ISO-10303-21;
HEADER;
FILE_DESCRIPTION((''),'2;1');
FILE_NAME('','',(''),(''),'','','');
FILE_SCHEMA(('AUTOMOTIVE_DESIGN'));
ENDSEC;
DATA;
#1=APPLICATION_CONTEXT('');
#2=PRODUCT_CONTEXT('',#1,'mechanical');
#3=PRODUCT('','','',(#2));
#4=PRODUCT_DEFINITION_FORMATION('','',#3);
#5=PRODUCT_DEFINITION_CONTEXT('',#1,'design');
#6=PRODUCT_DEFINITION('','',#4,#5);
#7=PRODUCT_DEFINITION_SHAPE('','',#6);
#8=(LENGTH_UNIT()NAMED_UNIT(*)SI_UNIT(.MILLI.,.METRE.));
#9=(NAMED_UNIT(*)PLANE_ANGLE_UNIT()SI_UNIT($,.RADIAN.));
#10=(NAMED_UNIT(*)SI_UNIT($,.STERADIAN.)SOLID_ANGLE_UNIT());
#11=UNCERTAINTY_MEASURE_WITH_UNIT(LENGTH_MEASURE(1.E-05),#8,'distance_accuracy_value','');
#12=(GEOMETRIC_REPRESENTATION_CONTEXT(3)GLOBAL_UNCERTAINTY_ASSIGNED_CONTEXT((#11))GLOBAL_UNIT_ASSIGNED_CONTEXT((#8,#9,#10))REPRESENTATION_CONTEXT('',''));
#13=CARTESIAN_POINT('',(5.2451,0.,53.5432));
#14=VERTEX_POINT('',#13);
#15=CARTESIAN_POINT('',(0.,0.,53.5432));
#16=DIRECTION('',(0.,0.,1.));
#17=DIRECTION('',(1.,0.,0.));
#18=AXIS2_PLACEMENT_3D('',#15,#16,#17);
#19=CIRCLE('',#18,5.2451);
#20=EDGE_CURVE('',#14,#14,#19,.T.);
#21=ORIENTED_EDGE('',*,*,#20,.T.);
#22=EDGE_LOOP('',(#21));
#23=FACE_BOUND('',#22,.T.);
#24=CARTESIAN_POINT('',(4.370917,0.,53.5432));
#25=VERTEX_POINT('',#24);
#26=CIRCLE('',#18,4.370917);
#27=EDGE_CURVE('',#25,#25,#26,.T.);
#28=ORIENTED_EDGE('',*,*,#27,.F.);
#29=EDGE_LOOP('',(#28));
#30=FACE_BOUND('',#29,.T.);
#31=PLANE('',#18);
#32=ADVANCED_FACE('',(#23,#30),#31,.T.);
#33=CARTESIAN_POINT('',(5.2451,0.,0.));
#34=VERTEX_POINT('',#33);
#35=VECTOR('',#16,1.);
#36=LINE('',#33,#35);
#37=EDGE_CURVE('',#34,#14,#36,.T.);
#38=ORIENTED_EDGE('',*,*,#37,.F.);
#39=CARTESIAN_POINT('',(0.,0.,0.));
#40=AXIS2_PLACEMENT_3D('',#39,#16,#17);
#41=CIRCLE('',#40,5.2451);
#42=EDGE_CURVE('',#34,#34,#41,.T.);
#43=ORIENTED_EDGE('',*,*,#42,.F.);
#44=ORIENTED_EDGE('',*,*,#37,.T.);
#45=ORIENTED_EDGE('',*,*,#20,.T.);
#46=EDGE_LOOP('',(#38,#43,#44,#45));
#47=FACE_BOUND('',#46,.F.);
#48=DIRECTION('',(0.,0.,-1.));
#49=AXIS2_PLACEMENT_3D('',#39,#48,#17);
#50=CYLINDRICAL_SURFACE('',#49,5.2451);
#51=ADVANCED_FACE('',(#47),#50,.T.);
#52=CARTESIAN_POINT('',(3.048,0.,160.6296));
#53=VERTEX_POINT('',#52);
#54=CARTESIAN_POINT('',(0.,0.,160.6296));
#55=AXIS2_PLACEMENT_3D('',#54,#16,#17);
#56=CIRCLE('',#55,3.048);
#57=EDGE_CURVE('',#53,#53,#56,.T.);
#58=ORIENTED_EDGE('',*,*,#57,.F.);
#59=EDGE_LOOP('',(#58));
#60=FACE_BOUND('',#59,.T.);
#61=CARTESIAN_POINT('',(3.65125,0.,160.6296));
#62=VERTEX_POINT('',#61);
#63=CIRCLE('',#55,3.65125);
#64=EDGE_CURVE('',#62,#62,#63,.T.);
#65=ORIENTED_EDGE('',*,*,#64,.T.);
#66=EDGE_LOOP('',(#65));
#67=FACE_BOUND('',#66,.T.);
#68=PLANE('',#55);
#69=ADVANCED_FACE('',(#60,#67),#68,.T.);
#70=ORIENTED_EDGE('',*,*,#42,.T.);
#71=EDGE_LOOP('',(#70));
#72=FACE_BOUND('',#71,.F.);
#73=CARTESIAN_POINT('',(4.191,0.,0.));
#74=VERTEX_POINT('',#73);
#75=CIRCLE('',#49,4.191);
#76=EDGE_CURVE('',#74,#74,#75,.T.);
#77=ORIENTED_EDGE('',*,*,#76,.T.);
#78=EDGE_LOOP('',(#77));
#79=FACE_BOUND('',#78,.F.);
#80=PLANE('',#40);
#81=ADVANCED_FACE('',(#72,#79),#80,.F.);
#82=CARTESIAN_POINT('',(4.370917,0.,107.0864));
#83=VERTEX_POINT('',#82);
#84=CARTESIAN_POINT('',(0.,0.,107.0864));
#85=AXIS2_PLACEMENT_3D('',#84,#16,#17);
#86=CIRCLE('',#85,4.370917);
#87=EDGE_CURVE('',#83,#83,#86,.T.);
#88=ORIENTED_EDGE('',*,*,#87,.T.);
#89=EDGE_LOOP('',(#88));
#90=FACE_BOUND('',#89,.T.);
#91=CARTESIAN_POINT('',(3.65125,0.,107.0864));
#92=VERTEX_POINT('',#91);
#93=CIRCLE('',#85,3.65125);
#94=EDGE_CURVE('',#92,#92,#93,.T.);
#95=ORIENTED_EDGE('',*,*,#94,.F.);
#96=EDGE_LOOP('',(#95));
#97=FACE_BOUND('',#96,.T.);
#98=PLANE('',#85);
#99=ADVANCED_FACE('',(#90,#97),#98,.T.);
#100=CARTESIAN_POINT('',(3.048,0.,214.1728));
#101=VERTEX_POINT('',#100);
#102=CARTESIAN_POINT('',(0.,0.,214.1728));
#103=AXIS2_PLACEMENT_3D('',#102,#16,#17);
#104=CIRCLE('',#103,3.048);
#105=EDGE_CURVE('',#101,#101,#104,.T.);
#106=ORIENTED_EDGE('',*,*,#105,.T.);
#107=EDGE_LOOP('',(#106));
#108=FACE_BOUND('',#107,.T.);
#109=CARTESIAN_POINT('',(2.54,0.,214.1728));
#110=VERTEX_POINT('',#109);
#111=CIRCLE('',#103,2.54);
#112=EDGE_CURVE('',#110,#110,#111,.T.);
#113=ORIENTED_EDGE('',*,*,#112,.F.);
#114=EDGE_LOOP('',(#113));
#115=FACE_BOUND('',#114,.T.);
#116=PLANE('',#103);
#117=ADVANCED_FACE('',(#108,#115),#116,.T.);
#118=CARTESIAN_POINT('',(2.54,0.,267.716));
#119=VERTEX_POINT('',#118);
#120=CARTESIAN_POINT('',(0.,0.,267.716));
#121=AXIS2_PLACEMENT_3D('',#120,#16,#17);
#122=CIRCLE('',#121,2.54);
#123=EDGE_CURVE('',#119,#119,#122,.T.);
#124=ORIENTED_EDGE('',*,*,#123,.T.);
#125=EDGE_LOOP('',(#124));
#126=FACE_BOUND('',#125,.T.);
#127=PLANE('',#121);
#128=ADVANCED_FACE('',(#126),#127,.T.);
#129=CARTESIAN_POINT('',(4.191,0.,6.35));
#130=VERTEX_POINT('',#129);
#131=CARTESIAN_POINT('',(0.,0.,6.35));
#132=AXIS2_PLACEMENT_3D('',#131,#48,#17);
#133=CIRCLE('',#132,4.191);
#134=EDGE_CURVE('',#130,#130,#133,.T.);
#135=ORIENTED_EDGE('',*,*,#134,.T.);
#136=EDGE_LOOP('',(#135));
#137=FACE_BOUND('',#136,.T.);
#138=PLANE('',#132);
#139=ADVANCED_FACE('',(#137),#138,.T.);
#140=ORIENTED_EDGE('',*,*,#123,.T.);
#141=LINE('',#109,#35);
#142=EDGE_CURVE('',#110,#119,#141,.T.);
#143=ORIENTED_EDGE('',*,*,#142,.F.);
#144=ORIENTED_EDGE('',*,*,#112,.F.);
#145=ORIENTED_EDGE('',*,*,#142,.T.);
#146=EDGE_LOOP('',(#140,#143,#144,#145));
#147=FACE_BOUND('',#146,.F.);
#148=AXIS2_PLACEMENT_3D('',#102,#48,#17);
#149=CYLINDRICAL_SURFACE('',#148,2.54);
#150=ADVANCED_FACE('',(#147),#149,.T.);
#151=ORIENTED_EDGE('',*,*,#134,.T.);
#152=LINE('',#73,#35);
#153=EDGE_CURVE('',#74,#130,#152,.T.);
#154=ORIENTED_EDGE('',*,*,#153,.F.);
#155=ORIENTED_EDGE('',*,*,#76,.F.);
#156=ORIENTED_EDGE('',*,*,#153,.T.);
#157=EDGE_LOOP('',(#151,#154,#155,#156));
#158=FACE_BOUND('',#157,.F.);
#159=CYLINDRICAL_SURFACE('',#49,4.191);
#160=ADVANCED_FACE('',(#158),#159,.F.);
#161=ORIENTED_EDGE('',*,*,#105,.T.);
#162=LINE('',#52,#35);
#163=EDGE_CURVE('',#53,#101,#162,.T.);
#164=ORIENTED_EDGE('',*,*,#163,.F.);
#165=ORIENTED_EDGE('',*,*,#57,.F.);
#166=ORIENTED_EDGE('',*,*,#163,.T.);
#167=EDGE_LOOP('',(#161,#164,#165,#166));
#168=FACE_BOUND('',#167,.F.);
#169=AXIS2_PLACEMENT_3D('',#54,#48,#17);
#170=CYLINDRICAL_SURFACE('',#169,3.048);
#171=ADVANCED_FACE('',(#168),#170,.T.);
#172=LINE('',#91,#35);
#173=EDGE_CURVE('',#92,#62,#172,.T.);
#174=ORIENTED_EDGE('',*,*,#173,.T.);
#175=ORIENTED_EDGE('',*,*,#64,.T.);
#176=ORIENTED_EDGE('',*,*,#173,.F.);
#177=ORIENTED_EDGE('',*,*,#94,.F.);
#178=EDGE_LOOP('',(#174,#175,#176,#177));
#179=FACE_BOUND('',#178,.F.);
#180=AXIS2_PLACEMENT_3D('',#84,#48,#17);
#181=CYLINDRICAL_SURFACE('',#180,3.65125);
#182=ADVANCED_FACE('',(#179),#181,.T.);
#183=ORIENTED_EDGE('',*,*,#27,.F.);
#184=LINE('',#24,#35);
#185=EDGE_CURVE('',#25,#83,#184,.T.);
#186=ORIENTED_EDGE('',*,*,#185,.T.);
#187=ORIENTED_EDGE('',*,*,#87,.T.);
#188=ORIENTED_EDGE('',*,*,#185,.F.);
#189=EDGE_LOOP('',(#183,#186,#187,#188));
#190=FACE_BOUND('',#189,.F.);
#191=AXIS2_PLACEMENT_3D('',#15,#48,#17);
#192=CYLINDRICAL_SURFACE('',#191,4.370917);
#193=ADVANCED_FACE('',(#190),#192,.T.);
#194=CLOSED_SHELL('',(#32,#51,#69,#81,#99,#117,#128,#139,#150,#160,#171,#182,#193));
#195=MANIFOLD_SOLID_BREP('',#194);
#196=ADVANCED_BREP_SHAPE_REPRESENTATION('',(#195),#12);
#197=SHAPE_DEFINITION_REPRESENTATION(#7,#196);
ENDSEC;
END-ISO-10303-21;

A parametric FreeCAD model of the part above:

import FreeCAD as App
import Part
import Sketcher
from FreeCAD import Vector
Q = App.Units.Quantity

doc = App.newDocument("Part")
body = doc.addObject("PartDesign::Body", "Body")

# Sketch on XY plane
sketch1 = body.newObject("Sketcher::SketchObject", "Sketch")
sketch1.AttachmentSupport = (doc.getObject("XY_Plane"), [""])
sketch1.MapMode = "FlatFace"
sketch1.addGeometry(Part.Circle(Vector(0, 0, 0), Vector(0, 0, 1), 5.2451), False)
sketch1.addConstraint(Sketcher.Constraint("Coincident", 0, 3, -1, 1))
sketch1.addConstraint(Sketcher.Constraint("Diameter", 0, Q("0.413 in")))
pad1 = body.newObject("PartDesign::Pad", "Pad")
pad1.Profile = sketch1
pad1.Length = Q("2.108 in")

# Sketch on XY plane
sketch2 = body.newObject("Sketcher::SketchObject", "Sketch001")
sketch2.AttachmentSupport = (doc.getObject("XY_Plane"), [""])
sketch2.MapMode = "FlatFace"
sketch2.addGeometry(Part.Circle(Vector(0, 0, 0), Vector(0, 0, 1), 4.191), False)
sketch2.addConstraint(Sketcher.Constraint("Coincident", 0, 3, -1, 1))
sketch2.addConstraint(Sketcher.Constraint("Diameter", 0, Q("0.33 in")))
pocket1 = body.newObject("PartDesign::Pocket", "Pocket")
pocket1.Profile = sketch2
pocket1.Length = Q("0.25 in")
pocket1.Reversed = True

# Sketch on XY plane
sketch3 = body.newObject("Sketcher::SketchObject", "Sketch002")
sketch3.AttachmentSupport = (doc.getObject("XY_Plane"), [""])
sketch3.MapMode = "FlatFace"
sketch3.AttachmentOffset = App.Placement(Vector(0, 0, 2.108 * 25.4), App.Rotation())
sketch3.addGeometry(Part.Circle(Vector(0, 0, 0), Vector(0, 0, 1), 4.370917), False)
sketch3.addConstraint(Sketcher.Constraint("Coincident", 0, 3, -1, 1))
sketch3.addConstraint(Sketcher.Constraint("Diameter", 0, Q("8.741834 mm")))
pad2 = body.newObject("PartDesign::Pad", "Pad001")
pad2.Profile = sketch3
pad2.Length = Q("2.108 in")

# Sketch on XY plane
sketch4 = body.newObject("Sketcher::SketchObject", "Sketch003")
sketch4.AttachmentSupport = (doc.getObject("XY_Plane"), [""])
sketch4.MapMode = "FlatFace"
sketch4.AttachmentOffset = App.Placement(Vector(0, 0, 4.216 * 25.4), App.Rotation())
sketch4.addGeometry(Part.Circle(Vector(0, 0, 0), Vector(0, 0, 1), 3.65125), False)
sketch4.addConstraint(Sketcher.Constraint("Coincident", 0, 3, -1, 1))
sketch4.addConstraint(Sketcher.Constraint("Diameter", 0, Q("0.2875 in")))
pad3 = body.newObject("PartDesign::Pad", "Pad002")
pad3.Profile = sketch4
pad3.Length = Q("2.108 in")

# Sketch on XY plane
sketch5 = body.newObject("Sketcher::SketchObject", "Sketch004")
sketch5.AttachmentSupport = (doc.getObject("XY_Plane"), [""])
sketch5.MapMode = "FlatFace"
sketch5.AttachmentOffset = App.Placement(Vector(0, 0, 6.324 * 25.4), App.Rotation())
sketch5.addGeometry(Part.Circle(Vector(0, 0, 0), Vector(0, 0, 1), 3.048), False)
sketch5.addConstraint(Sketcher.Constraint("Coincident", 0, 3, -1, 1))
sketch5.addConstraint(Sketcher.Constraint("Diameter", 0, Q("0.24 in")))
pad4 = body.newObject("PartDesign::Pad", "Pad003")
pad4.Profile = sketch5
pad4.Length = Q("2.108 in")

# Sketch on XY plane
sketch6 = body.newObject("Sketcher::SketchObject", "Sketch005")
sketch6.AttachmentSupport = (doc.getObject("XY_Plane"), [""])
sketch6.MapMode = "FlatFace"
sketch6.AttachmentOffset = App.Placement(Vector(0, 0, 8.432 * 25.4), App.Rotation())
sketch6.addGeometry(Part.Circle(Vector(0, 0, 0), Vector(0, 0, 1), 2.54), False)
sketch6.addConstraint(Sketcher.Constraint("Coincident", 0, 3, -1, 1))
sketch6.addConstraint(Sketcher.Constraint("Diameter", 0, Q("0.2 in")))
pad5 = body.newObject("PartDesign::Pad", "Pad004")
pad5.Profile = sketch6
pad5.Length = Q("2.108 in")

doc.recompute()
